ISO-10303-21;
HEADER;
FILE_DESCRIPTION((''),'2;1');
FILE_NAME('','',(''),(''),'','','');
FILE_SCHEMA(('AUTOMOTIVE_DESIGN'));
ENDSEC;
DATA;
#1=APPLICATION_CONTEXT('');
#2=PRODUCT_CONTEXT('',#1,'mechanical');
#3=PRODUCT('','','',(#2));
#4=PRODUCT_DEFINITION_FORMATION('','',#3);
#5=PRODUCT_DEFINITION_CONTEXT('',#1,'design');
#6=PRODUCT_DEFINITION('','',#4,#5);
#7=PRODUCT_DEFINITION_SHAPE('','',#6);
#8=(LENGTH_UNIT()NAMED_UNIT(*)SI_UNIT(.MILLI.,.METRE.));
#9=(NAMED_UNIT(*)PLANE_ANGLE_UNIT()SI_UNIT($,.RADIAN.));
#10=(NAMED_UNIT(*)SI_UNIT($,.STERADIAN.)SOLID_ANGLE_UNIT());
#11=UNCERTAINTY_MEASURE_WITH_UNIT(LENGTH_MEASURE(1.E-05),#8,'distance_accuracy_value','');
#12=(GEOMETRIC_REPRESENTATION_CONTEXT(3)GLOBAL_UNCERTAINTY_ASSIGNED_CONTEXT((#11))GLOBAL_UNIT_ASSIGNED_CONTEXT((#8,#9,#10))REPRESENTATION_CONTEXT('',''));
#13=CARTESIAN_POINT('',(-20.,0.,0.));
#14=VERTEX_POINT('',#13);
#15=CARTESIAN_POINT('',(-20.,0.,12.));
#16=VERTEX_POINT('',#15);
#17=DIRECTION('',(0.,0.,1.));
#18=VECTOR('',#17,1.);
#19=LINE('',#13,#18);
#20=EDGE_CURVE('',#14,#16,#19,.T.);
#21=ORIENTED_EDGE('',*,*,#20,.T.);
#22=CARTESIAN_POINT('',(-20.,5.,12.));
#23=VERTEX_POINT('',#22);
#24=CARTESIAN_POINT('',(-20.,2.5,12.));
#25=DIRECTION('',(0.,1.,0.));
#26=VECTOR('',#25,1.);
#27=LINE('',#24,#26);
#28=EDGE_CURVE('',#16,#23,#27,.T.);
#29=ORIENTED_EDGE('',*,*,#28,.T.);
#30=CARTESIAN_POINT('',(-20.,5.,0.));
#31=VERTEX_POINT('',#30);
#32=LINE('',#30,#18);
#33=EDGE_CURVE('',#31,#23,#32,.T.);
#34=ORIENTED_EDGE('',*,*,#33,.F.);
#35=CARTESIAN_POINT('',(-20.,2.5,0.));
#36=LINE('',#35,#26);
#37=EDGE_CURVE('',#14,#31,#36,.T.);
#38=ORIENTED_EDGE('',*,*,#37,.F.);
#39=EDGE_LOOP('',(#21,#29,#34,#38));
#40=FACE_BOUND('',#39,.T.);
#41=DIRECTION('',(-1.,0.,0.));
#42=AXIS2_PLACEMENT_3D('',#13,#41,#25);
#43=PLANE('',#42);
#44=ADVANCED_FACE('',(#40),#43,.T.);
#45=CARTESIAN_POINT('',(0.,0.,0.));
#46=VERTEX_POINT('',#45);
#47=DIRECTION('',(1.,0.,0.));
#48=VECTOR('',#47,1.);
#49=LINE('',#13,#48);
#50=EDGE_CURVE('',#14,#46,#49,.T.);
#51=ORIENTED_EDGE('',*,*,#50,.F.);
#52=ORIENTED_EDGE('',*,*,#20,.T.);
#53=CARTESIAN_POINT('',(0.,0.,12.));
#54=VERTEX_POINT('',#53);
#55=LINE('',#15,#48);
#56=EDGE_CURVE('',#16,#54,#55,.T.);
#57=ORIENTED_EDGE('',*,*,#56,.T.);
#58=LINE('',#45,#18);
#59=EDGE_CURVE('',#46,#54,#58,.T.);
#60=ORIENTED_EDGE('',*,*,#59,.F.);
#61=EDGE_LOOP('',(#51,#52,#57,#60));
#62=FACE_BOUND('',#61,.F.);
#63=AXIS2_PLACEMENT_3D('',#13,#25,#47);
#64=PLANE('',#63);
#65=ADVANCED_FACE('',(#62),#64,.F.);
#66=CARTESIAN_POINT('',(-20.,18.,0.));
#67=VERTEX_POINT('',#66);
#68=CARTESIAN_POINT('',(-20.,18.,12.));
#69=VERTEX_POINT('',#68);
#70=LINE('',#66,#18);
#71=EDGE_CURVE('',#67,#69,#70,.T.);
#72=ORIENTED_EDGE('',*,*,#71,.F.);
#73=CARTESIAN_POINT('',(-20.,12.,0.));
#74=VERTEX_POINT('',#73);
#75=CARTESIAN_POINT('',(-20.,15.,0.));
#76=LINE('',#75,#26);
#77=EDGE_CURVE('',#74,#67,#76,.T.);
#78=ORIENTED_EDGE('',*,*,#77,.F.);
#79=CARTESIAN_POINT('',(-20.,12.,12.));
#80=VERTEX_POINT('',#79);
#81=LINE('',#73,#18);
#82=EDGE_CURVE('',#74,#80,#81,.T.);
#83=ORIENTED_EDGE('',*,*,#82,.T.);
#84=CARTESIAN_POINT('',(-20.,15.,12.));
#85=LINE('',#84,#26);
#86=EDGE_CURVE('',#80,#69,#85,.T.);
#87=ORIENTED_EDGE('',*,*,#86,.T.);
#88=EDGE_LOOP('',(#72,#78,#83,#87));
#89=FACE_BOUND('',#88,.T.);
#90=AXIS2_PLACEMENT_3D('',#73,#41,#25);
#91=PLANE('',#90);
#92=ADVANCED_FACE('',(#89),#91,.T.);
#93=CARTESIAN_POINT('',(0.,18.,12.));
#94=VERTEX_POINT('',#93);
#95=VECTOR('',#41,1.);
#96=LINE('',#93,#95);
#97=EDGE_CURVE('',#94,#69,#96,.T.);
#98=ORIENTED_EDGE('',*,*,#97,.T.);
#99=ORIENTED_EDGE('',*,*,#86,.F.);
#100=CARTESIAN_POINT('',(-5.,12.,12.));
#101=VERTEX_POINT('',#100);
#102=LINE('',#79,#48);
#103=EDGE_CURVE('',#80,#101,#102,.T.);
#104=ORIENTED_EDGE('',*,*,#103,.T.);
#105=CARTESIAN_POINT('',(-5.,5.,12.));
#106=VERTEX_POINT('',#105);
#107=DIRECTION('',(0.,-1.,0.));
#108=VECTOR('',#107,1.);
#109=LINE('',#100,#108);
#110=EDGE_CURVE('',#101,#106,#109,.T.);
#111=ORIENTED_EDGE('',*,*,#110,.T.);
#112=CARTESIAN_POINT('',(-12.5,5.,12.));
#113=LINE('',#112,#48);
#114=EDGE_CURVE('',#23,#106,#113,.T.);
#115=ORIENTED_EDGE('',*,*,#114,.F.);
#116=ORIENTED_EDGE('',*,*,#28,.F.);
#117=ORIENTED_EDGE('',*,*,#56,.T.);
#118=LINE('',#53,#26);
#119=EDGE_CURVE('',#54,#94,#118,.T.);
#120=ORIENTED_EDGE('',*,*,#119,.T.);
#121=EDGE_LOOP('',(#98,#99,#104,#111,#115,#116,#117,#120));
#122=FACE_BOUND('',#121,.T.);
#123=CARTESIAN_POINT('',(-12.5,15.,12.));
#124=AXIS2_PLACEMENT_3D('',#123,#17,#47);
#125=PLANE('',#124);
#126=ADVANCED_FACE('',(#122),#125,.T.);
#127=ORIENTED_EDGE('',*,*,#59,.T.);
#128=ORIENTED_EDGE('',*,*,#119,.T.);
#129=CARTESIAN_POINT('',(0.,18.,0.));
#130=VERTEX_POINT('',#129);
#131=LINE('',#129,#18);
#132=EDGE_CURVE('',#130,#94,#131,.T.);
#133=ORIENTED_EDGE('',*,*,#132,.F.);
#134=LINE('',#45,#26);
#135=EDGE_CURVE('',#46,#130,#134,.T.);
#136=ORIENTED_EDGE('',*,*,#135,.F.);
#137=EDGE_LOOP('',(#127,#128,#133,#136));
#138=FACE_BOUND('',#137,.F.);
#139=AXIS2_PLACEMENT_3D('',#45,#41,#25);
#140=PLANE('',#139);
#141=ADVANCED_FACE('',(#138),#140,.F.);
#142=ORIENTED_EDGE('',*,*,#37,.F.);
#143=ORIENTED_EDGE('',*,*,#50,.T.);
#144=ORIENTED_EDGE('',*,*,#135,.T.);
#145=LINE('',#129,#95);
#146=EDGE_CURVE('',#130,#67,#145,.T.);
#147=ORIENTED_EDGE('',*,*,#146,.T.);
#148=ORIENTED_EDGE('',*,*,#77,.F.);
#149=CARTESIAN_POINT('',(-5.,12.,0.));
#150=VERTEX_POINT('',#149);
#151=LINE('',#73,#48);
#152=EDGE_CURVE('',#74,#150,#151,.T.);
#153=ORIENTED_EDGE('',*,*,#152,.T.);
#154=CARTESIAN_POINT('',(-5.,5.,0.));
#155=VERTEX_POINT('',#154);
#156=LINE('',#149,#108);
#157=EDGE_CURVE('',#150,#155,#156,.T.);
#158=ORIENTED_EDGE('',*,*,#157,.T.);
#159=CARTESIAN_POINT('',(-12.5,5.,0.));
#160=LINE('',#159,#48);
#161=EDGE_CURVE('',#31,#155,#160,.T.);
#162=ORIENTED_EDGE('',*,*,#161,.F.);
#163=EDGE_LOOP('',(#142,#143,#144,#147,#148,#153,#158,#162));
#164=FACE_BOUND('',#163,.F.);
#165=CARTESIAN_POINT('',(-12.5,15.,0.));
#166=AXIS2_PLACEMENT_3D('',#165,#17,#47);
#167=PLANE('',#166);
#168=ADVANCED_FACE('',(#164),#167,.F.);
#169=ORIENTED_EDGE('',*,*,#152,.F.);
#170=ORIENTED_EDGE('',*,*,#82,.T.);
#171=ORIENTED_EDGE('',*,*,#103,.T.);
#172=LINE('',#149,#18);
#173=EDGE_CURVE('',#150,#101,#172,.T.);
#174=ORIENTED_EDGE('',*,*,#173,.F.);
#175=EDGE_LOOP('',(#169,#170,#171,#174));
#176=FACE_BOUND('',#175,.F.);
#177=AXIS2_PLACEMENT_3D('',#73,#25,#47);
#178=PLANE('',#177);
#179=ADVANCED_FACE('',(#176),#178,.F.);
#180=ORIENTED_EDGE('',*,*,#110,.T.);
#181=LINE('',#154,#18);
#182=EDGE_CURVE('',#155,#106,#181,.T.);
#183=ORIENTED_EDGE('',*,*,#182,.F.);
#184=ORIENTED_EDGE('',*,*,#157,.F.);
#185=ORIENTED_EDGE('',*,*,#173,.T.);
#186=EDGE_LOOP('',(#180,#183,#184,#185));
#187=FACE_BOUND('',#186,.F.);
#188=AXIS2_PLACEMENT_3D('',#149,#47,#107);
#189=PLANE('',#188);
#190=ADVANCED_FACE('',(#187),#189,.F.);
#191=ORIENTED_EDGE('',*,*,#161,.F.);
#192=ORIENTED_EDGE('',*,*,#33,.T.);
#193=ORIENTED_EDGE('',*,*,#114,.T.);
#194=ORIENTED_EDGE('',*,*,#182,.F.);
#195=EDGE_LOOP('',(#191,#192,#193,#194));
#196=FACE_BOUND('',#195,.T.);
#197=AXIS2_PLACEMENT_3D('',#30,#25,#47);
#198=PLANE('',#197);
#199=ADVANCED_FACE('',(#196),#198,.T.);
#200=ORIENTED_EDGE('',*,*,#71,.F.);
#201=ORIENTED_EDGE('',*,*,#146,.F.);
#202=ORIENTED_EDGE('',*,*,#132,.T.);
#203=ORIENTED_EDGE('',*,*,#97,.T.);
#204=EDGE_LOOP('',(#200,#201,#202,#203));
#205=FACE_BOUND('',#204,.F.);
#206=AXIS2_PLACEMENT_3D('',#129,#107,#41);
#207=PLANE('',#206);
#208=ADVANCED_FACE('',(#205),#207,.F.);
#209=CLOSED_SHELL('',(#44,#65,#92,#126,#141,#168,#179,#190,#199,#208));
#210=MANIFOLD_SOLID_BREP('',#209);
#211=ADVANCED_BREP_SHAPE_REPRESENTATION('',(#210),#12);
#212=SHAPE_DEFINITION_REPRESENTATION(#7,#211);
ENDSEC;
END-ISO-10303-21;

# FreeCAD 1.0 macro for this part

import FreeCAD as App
import Part
import Sketcher

V = App.Vector
Q = App.Units.Quantity


def add_polygon(sketch, points):
    """Adds a closed chain of lines whose ends are joined by coincident constraints."""
    first, n = sketch.GeometryCount, len(points)
    for a, b in zip(points, points[1:] + points[:1]):
        sketch.addGeometry(Part.LineSegment(App.Vector(*a, 0), App.Vector(*b, 0)), False)
    for i in range(n):
        sketch.addConstraint(Sketcher.Constraint("Coincident", first + i, 2, first + (i + 1) % n, 1))

doc = App.newDocument("Part")
body = doc.addObject("PartDesign::Body", "Body")

sketch1 = doc.addObject("Sketcher::SketchObject", "Sketch")
body.addObject(sketch1)
sketch1.AttachmentSupport = (doc.XY_Plane, [""])
sketch1.MapMode = "FlatFace"
add_polygon(sketch1, [(-20, 18), (-20, 12), (-5, 12), (-5, 5), (-20, 5), (-20, 0), (0, 0), (0, 18)])
sketch1.addConstraint([
    Sketcher.Constraint("Vertical", 0),
    Sketcher.Constraint("Horizontal", 1),
    Sketcher.Constraint("Vertical", 2),
    Sketcher.Constraint("Horizontal", 3),
    Sketcher.Constraint("Vertical", 4),
    Sketcher.Constraint("Horizontal", 5),
    Sketcher.Constraint("Vertical", 6),
    Sketcher.Constraint("Horizontal", 7),
    Sketcher.Constraint("Coincident", 5, 2, -1, 1),
    Sketcher.Constraint("Vertical", 0, 2, 3, 2),
    Sketcher.Constraint("DistanceX", 1, 1, 1, 2, Q("15 mm")),
    Sketcher.Constraint("DistanceX", 5, 1, 5, 2, Q("20 mm")),
    Sketcher.Constraint("DistanceY", 0, 2, 0, 1, Q("6 mm")),
    Sketcher.Constraint("DistanceY", 2, 2, 2, 1, Q("7 mm")),
    Sketcher.Constraint("DistanceY", 4, 2, 4, 1, Q("5 mm")),
])
pad1 = doc.addObject("PartDesign::Pad", "Pad")
body.addObject(pad1)
pad1.Profile = sketch1
pad1.Length = 12

doc.recompute()
